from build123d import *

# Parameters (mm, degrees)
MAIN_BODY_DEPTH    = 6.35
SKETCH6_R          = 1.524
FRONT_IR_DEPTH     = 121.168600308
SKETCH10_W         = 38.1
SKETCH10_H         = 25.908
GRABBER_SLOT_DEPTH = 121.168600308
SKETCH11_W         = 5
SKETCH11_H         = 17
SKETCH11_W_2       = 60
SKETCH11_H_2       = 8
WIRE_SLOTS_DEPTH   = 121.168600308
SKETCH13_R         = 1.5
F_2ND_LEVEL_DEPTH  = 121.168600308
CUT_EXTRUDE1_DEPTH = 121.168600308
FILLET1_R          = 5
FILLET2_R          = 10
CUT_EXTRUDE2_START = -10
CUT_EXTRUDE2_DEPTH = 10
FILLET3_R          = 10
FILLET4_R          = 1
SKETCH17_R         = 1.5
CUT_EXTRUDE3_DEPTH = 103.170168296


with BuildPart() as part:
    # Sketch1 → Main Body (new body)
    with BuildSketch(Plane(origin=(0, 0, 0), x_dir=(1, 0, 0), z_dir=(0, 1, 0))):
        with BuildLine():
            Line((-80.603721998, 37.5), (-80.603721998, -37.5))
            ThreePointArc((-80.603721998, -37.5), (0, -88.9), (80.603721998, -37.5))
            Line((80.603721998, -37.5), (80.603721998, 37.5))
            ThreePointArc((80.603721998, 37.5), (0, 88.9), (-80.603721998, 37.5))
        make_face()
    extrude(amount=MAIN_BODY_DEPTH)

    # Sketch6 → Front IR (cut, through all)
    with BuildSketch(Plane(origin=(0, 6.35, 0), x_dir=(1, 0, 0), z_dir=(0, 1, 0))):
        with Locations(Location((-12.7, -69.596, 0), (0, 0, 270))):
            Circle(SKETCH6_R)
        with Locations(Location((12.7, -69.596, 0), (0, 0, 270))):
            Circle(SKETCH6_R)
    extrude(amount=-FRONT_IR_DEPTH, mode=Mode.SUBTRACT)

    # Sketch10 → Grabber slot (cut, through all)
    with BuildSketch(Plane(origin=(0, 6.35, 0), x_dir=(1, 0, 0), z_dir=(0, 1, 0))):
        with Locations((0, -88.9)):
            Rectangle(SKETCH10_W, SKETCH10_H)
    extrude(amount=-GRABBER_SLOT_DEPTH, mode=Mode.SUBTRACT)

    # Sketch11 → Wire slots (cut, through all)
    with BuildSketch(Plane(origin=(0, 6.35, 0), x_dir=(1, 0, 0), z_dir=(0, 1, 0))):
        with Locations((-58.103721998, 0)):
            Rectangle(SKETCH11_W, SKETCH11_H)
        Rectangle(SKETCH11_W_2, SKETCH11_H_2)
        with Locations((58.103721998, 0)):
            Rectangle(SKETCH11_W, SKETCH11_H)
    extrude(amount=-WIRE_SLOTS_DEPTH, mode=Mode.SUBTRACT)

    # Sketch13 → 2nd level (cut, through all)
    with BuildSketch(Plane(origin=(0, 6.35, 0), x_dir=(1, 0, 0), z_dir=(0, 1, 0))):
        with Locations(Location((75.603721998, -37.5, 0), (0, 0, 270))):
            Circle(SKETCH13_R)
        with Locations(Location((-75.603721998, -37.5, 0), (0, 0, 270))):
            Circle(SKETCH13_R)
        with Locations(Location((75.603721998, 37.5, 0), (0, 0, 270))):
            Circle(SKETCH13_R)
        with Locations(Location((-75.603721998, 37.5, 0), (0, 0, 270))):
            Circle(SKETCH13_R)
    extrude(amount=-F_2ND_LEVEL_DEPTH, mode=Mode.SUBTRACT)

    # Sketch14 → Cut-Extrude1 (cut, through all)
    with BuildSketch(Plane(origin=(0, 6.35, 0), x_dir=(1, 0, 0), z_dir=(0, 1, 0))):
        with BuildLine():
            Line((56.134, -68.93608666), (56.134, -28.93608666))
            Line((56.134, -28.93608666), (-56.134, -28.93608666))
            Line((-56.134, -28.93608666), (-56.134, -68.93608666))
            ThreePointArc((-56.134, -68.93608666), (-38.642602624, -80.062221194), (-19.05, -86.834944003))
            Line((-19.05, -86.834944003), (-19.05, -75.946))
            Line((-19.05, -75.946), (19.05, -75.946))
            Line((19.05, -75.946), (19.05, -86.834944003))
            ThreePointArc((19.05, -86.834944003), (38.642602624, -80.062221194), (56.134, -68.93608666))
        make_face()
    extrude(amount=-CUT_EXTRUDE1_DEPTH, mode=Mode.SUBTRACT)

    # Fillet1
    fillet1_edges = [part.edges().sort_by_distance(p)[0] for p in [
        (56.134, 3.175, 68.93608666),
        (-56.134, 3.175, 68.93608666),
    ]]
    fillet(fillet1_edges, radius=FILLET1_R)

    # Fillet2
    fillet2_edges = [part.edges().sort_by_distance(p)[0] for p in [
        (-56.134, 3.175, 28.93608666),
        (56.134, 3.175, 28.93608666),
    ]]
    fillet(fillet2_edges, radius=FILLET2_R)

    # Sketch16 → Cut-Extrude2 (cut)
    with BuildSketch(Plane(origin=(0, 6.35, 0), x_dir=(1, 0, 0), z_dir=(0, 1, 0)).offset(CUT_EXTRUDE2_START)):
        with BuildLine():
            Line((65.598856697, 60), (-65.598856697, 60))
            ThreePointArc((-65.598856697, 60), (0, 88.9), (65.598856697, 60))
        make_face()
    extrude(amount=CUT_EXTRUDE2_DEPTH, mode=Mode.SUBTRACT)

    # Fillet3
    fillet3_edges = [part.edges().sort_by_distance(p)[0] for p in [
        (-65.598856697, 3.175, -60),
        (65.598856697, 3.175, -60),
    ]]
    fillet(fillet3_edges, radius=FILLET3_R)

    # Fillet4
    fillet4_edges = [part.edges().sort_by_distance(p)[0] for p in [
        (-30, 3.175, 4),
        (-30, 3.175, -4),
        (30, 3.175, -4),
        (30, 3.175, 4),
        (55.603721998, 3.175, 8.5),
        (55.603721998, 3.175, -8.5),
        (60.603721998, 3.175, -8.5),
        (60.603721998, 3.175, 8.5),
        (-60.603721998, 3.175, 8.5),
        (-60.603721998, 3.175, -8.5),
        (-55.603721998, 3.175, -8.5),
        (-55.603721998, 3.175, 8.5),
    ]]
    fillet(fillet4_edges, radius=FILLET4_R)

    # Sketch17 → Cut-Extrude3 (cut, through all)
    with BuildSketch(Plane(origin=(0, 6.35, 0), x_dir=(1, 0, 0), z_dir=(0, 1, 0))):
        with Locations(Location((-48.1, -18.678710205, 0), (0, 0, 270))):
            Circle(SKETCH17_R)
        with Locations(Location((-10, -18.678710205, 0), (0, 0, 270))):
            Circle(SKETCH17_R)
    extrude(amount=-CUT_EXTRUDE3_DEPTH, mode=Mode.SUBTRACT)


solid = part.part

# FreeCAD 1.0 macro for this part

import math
import FreeCAD as App
import Part
import Sketcher


def edges_at(feature, points):
    """Names of the edges that pass closest to the given points."""
    edges = feature.Shape.Edges
    near = lambda p: min(range(len(edges)), key=lambda i: edges[i].distToShape(Part.Vertex(*p))[0])
    return sorted({f"Edge{near(p) + 1}" for p in points})

doc = App.newDocument("Part")
body = doc.addObject("PartDesign::Body", "Body")

# Sketch on XZ plane
sketch1 = body.newObject("Sketcher::SketchObject", "Sketch")
sketch1.AttachmentSupport = (doc.getObject("XZ_Plane"), [""])
sketch1.MapMode = "FlatFace"
sketch1.addGeometry([
    Part.LineSegment(App.Vector(-81, -38, 0), App.Vector(-81, 38, 0)),
    Part.ArcOfCircle(Part.Circle(App.Vector(0, 0, 0), App.Vector(0, 0, 1), 89), math.radians(25), math.radians(155)),
    Part.LineSegment(App.Vector(81, 38, 0), App.Vector(81, -38, 0)),
    Part.ArcOfCircle(Part.Circle(App.Vector(0, 0, 0), App.Vector(0, 0, 1), 89), math.radians(-155), math.radians(-25)),
], False)
sketch1.addConstraint([
    Sketcher.Constraint("Coincident", 0, 2, 1, 2),
    Sketcher.Constraint("Coincident", 1, 1, 2, 1),
    Sketcher.Constraint("Coincident", 2, 2, 3, 2),
    Sketcher.Constraint("Coincident", 3, 1, 0, 1),
    Sketcher.Constraint("Vertical", 0),
    Sketcher.Constraint("Vertical", 2),
    Sketcher.Constraint("Coincident", 1, 3, -1, 1),
    Sketcher.Constraint("Coincident", 3, 3, -1, 1),
    Sketcher.Constraint("Equal", 1, 3),
    Sketcher.Constraint("Horizontal", 0, 2, 1, 1),
    Sketcher.Constraint("Radius", 1, 88.9),
    Sketcher.Constraint("DistanceY", 0, 1, 0, 2, 75.0),
])
pad1 = body.newObject("PartDesign::Pad", "Pad")
pad1.Profile = sketch1
pad1.Length = 6.35
pad1.Reversed = True

# Sketch on XZ plane
sketch2 = body.newObject("Sketcher::SketchObject", "Sketch001")
sketch2.AttachmentSupport = (doc.getObject("XZ_Plane"), [""])
sketch2.MapMode = "FlatFace"
sketch2.AttachmentOffset = App.Placement(App.Vector(0, 0, -6.35), App.Rotation())
sketch2.addGeometry([
    Part.Circle(App.Vector(-12.7, 69.6, 0), App.Vector(0, 0, 1), 1.5),
    Part.Circle(App.Vector(12.7, 69.6, 0), App.Vector(0, 0, 1), 1.5),
], False)
sketch2.addConstraint([
    Sketcher.Constraint("Equal", 0, 1),
    Sketcher.Constraint("Symmetric", 0, 3, 1, 3, -2),
    Sketcher.Constraint("Diameter", 0, 3.048),
    Sketcher.Constraint("DistanceX", 0, 3, -1, 1, 12.7),
    Sketcher.Constraint("DistanceY", -1, 1, 0, 3, 69.596),
])
pocket1 = body.newObject("PartDesign::Pocket", "Pocket")
pocket1.Profile = sketch2
pocket1.Type = "ThroughAll"
pocket1.Reversed = True

# Sketch on XZ plane
sketch3 = body.newObject("Sketcher::SketchObject", "Sketch002")
sketch3.AttachmentSupport = (doc.getObject("XZ_Plane"), [""])
sketch3.MapMode = "FlatFace"
sketch3.AttachmentOffset = App.Placement(App.Vector(0, 0, -6.35), App.Rotation())
sketch3.addGeometry([
    Part.LineSegment(App.Vector(-19, 76, 0), App.Vector(-19, 102, 0)),
    Part.LineSegment(App.Vector(-19, 102, 0), App.Vector(19, 102, 0)),
    Part.LineSegment(App.Vector(19, 102, 0), App.Vector(19, 76, 0)),
    Part.LineSegment(App.Vector(19, 76, 0), App.Vector(-19, 76, 0)),
], False)
sketch3.addConstraint([
    Sketcher.Constraint("Coincident", 0, 2, 1, 1),
    Sketcher.Constraint("Coincident", 1, 2, 2, 1),
    Sketcher.Constraint("Coincident", 2, 2, 3, 1),
    Sketcher.Constraint("Coincident", 3, 2, 0, 1),
    Sketcher.Constraint("Vertical", 0),
    Sketcher.Constraint("Horizontal", 1),
    Sketcher.Constraint("Vertical", 2),
    Sketcher.Constraint("Horizontal", 3),
    Sketcher.Constraint("DistanceX", 1, 1, 1, 2, 38.1),
    Sketcher.Constraint("DistanceY", 0, 1, 0, 2, 25.908),
    Sketcher.Constraint("DistanceX", 0, 2, -1, 1, 19.05),
    Sketcher.Constraint("DistanceY", -1, 1, 0, 2, 101.854),
])
pocket2 = body.newObject("PartDesign::Pocket", "Pocket001")
pocket2.Profile = sketch3
pocket2.Type = "ThroughAll"
pocket2.Reversed = True

# Sketch on XZ plane
sketch4 = body.newObject("Sketcher::SketchObject", "Sketch003")
sketch4.AttachmentSupport = (doc.getObject("XZ_Plane"), [""])
sketch4.MapMode = "FlatFace"
sketch4.AttachmentOffset = App.Placement(App.Vector(0, 0, -6.35), App.Rotation())
sketch4.addGeometry([
    Part.LineSegment(App.Vector(-61, -8, 0), App.Vector(-61, 8, 0)),  # 0
    Part.LineSegment(App.Vector(-61, 8, 0), App.Vector(-56, 8, 0)),  # 1
    Part.LineSegment(App.Vector(-56, 8, 0), App.Vector(-56, -8, 0)),  # 2
    Part.LineSegment(App.Vector(-56, -8, 0), App.Vector(-61, -8, 0)),  # 3
    Part.LineSegment(App.Vector(-30, -4, 0), App.Vector(-30, 4, 0)),  # 4
    Part.LineSegment(App.Vector(-30, 4, 0), App.Vector(30, 4, 0)),  # 5
    Part.LineSegment(App.Vector(30, 4, 0), App.Vector(30, -4, 0)),  # 6
    Part.LineSegment(App.Vector(30, -4, 0), App.Vector(-30, -4, 0)),  # 7
    Part.LineSegment(App.Vector(56, -8, 0), App.Vector(56, 8, 0)),  # 8
    Part.LineSegment(App.Vector(56, 8, 0), App.Vector(61, 8, 0)),  # 9
    Part.LineSegment(App.Vector(61, 8, 0), App.Vector(61, -8, 0)),  # 10
    Part.LineSegment(App.Vector(61, -8, 0), App.Vector(56, -8, 0)),  # 11
], False)
sketch4.addConstraint([
    Sketcher.Constraint("Coincident", 0, 2, 1, 1),
    Sketcher.Constraint("Coincident", 1, 2, 2, 1),
    Sketcher.Constraint("Coincident", 2, 2, 3, 1),
    Sketcher.Constraint("Coincident", 3, 2, 0, 1),
    Sketcher.Constraint("Coincident", 4, 2, 5, 1),
    Sketcher.Constraint("Coincident", 5, 2, 6, 1),
    Sketcher.Constraint("Coincident", 6, 2, 7, 1),
    Sketcher.Constraint("Coincident", 7, 2, 4, 1),
    Sketcher.Constraint("Coincident", 8, 2, 9, 1),
    Sketcher.Constraint("Coincident", 9, 2, 10, 1),
    Sketcher.Constraint("Coincident", 10, 2, 11, 1),
    Sketcher.Constraint("Coincident", 11, 2, 8, 1),
    Sketcher.Constraint("Vertical", 0),
    Sketcher.Constraint("Horizontal", 1),
    Sketcher.Constraint("Vertical", 2),
    Sketcher.Constraint("Horizontal", 3),
    Sketcher.Constraint("Vertical", 4),
    Sketcher.Constraint("Horizontal", 5),
    Sketcher.Constraint("Vertical", 6),
    Sketcher.Constraint("Horizontal", 7),
    Sketcher.Constraint("Vertical", 8),
    Sketcher.Constraint("Horizontal", 9),
    Sketcher.Constraint("Vertical", 10),
    Sketcher.Constraint("Horizontal", 11),
    Sketcher.Constraint("Symmetric", 4, 2, 6, 2, -1, 1),
    Sketcher.Constraint("Symmetric", 2, 2, 8, 2, -1, 1),
    Sketcher.Constraint("Symmetric", 0, 2, 10, 2, -1, 1),
    Sketcher.Constraint("Horizontal", 1, 2, 8, 2),
    Sketcher.Constraint("DistanceX", 1, 1, 1, 2, 5.0),
    Sketcher.Constraint("DistanceX", 5, 1, 5, 2, 60.0),
    Sketcher.Constraint("DistanceY", 0, 1, 0, 2, 17.0),
    Sketcher.Constraint("DistanceY", 4, 1, 4, 2, 8.0),
    Sketcher.Constraint("DistanceX", 0, 2, -1, 1, 60.603722),
])
pocket3 = body.newObject("PartDesign::Pocket", "Pocket002")
pocket3.Profile = sketch4
pocket3.Type = "ThroughAll"
pocket3.Reversed = True

# Sketch on XZ plane
sketch5 = body.newObject("Sketcher::SketchObject", "Sketch004")
sketch5.AttachmentSupport = (doc.getObject("XZ_Plane"), [""])
sketch5.MapMode = "FlatFace"
sketch5.AttachmentOffset = App.Placement(App.Vector(0, 0, -6.35), App.Rotation())
sketch5.addGeometry([
    Part.Circle(App.Vector(75.6, 37.5, 0), App.Vector(0, 0, 1), 1.5),
    Part.Circle(App.Vector(-75.6, 37.5, 0), App.Vector(0, 0, 1), 1.5),
    Part.Circle(App.Vector(75.6, -37.5, 0), App.Vector(0, 0, 1), 1.5),
    Part.Circle(App.Vector(-75.6, -37.5, 0), App.Vector(0, 0, 1), 1.5),
], False)
sketch5.addConstraint([
    Sketcher.Constraint("Equal", 0, 1),
    Sketcher.Constraint("Equal", 1, 2),
    Sketcher.Constraint("Equal", 2, 3),
    Sketcher.Constraint("Symmetric", 1, 3, 2, 3, -1, 1),
    Sketcher.Constraint("Symmetric", 0, 3, 3, 3, -1, 1),
    Sketcher.Constraint("Symmetric", 0, 3, 1, 3, -2),
    Sketcher.Constraint("Diameter", 0, 3.0),
    Sketcher.Constraint("DistanceY", 2, 3, 0, 3, 75.0),
    Sketcher.Constraint("DistanceX", -1, 1, 0, 3, 75.603722),
])
pocket4 = body.newObject("PartDesign::Pocket", "Pocket003")
pocket4.Profile = sketch5
pocket4.Type = "ThroughAll"
pocket4.Reversed = True

# Sketch on XZ plane
sketch6 = body.newObject("Sketcher::SketchObject", "Sketch005")
sketch6.AttachmentSupport = (doc.getObject("XZ_Plane"), [""])
sketch6.MapMode = "FlatFace"
sketch6.AttachmentOffset = App.Placement(App.Vector(0, 0, -6.35), App.Rotation())
sketch6.addGeometry([
    Part.LineSegment(App.Vector(56, 69, 0), App.Vector(56, 29, 0)),  # 0
    Part.LineSegment(App.Vector(56, 29, 0), App.Vector(-56, 29, 0)),  # 1
    Part.LineSegment(App.Vector(-56, 29, 0), App.Vector(-56, 69, 0)),  # 2
    Part.ArcOfCircle(Part.Circle(App.Vector(0, 0, 0), App.Vector(0, 0, 1), 89), math.radians(102), math.radians(129)),  # 3
    Part.LineSegment(App.Vector(-19, 87, 0), App.Vector(-19, 76, 0)),  # 4
    Part.LineSegment(App.Vector(-19, 76, 0), App.Vector(19, 76, 0)),  # 5
    Part.LineSegment(App.Vector(19, 76, 0), App.Vector(19, 87, 0)),  # 6
    Part.ArcOfCircle(Part.Circle(App.Vector(0, 0, 0), App.Vector(0, 0, 1), 89), math.radians(51), math.radians(78)),  # 7
], False)
sketch6.addConstraint([
    Sketcher.Constraint("Coincident", 0, 2, 1, 1),
    Sketcher.Constraint("Coincident", 1, 2, 2, 1),
    Sketcher.Constraint("Coincident", 2, 2, 3, 2),
    Sketcher.Constraint("Coincident", 3, 1, 4, 1),
    Sketcher.Constraint("Coincident", 4, 2, 5, 1),
    Sketcher.Constraint("Coincident", 5, 2, 6, 1),
    Sketcher.Constraint("Coincident", 6, 2, 7, 2),
    Sketcher.Constraint("Coincident", 7, 1, 0, 1),
    Sketcher.Constraint("Vertical", 0),
    Sketcher.Constraint("Horizontal", 1),
    Sketcher.Constraint("Vertical", 2),
    Sketcher.Constraint("Vertical", 4),
    Sketcher.Constraint("Horizontal", 5),
    Sketcher.Constraint("Vertical", 6),
    Sketcher.Constraint("Coincident", 3, 3, -1, 1),
    Sketcher.Constraint("Coincident", 7, 3, -1, 1),
    Sketcher.Constraint("Equal", 3, 7),
    Sketcher.Constraint("Horizontal", 3, 1, 6, 2),
    Sketcher.Constraint("Horizontal", 2, 2, 7, 1),
    Sketcher.Constraint("Radius", 3, 88.9),
    Sketcher.Constraint("DistanceY", 0, 2, 0, 1, 40.0),
    Sketcher.Constraint("DistanceX", 5, 1, 5, 2, 38.1),
    Sketcher.Constraint("DistanceX", 1, 2, 1, 1, 112.268),
    Sketcher.Constraint("DistanceY", -1, 1, 4, 2, 75.946),
])
pocket5 = body.newObject("PartDesign::Pocket", "Pocket004")
pocket5.Profile = sketch6
pocket5.Type = "ThroughAll"
pocket5.Reversed = True
doc.recompute()

fillet = body.newObject("PartDesign::Fillet", "Fillet")
fillet.Base = (pocket5, edges_at(pocket5, [(56.134, 3.175, 68.936), (-56.134, 3.175, 68.936)]))
fillet.Radius = 5
doc.recompute()

fillet2 = body.newObject("PartDesign::Fillet", "Fillet001")
fillet2.Base = (fillet, edges_at(fillet, [(-56.134, 3.175, 28.936), (56.134, 3.175, 28.936)]))
fillet2.Radius = 10

# Sketch on XZ plane
sketch7 = body.newObject("Sketcher::SketchObject", "Sketch006")
sketch7.AttachmentSupport = (doc.getObject("XZ_Plane"), [""])
sketch7.MapMode = "FlatFace"
sketch7.AttachmentOffset = App.Placement(App.Vector(0, 0, 3.65), App.Rotation())
sketch7.addGeometry([
    Part.LineSegment(App.Vector(-66, -60, 0), App.Vector(66, -60, 0)),
    Part.ArcOfCircle(Part.Circle(App.Vector(0, 0, 0), App.Vector(0, 0, 1), 89), math.radians(-138), math.radians(-42)),
], False)
sketch7.addConstraint([
    Sketcher.Constraint("Coincident", 0, 1, 1, 1),
    Sketcher.Constraint("Coincident", 1, 2, 0, 2),
    Sketcher.Constraint("Horizontal", 0),
    Sketcher.Constraint("Coincident", 1, 3, -1, 1),
    Sketcher.Constraint("Radius", 1, 88.9),
    Sketcher.Constraint("DistanceY", 0, 1, -1, 1, 60.0),
])
pocket6 = body.newObject("PartDesign::Pocket", "Pocket005")
pocket6.Profile = sketch7
pocket6.Length = 10
doc.recompute()

fillet3 = body.newObject("PartDesign::Fillet", "Fillet002")
fillet3.Base = (pocket6, edges_at(pocket6, [(-65.599, 3.175, -60), (65.599, 3.175, -60)]))
fillet3.Radius = 10
doc.recompute()

fillet4 = body.newObject("PartDesign::Fillet", "Fillet003")
fillet4.Base = (fillet3, edges_at(fillet3, [
    (-30, 3.175, 4),
    (-30, 3.175, -4),
    (30, 3.175, -4),
    (30, 3.175, 4),
    (55.604, 3.175, 8.5),
    (55.604, 3.175, -8.5),
    (60.604, 3.175, -8.5),
    (60.604, 3.175, 8.5),
    (-60.604, 3.175, 8.5),
    (-60.604, 3.175, -8.5),
    (-55.604, 3.175, -8.5),
    (-55.604, 3.175, 8.5),
]))
fillet4.Radius = 1

# Sketch on XZ plane
sketch8 = body.newObject("Sketcher::SketchObject", "Sketch007")
sketch8.AttachmentSupport = (doc.getObject("XZ_Plane"), [""])
sketch8.MapMode = "FlatFace"
sketch8.AttachmentOffset = App.Placement(App.Vector(0, 0, -6.35), App.Rotation())
sketch8.addGeometry([
    Part.Circle(App.Vector(-48.1, 18.7, 0), App.Vector(0, 0, 1), 1.5),
    Part.Circle(App.Vector(-10, 18.7, 0), App.Vector(0, 0, 1), 1.5),
], False)
sketch8.addConstraint([
    Sketcher.Constraint("Equal", 0, 1),
    Sketcher.Constraint("Horizontal", 0, 3, 1, 3),
    Sketcher.Constraint("Diameter", 0, 3.0),
    Sketcher.Constraint("DistanceX", 1, 3, -1, 1, 10.0),
    Sketcher.Constraint("DistanceX", 0, 3, -1, 1, 48.1),
    Sketcher.Constraint("DistanceY", -1, 1, 0, 3, 18.67871),
])
pocket7 = body.newObject("PartDesign::Pocket", "Pocket006")
pocket7.Profile = sketch8
pocket7.Type = "ThroughAll"
pocket7.Reversed = True

doc.recompute()
